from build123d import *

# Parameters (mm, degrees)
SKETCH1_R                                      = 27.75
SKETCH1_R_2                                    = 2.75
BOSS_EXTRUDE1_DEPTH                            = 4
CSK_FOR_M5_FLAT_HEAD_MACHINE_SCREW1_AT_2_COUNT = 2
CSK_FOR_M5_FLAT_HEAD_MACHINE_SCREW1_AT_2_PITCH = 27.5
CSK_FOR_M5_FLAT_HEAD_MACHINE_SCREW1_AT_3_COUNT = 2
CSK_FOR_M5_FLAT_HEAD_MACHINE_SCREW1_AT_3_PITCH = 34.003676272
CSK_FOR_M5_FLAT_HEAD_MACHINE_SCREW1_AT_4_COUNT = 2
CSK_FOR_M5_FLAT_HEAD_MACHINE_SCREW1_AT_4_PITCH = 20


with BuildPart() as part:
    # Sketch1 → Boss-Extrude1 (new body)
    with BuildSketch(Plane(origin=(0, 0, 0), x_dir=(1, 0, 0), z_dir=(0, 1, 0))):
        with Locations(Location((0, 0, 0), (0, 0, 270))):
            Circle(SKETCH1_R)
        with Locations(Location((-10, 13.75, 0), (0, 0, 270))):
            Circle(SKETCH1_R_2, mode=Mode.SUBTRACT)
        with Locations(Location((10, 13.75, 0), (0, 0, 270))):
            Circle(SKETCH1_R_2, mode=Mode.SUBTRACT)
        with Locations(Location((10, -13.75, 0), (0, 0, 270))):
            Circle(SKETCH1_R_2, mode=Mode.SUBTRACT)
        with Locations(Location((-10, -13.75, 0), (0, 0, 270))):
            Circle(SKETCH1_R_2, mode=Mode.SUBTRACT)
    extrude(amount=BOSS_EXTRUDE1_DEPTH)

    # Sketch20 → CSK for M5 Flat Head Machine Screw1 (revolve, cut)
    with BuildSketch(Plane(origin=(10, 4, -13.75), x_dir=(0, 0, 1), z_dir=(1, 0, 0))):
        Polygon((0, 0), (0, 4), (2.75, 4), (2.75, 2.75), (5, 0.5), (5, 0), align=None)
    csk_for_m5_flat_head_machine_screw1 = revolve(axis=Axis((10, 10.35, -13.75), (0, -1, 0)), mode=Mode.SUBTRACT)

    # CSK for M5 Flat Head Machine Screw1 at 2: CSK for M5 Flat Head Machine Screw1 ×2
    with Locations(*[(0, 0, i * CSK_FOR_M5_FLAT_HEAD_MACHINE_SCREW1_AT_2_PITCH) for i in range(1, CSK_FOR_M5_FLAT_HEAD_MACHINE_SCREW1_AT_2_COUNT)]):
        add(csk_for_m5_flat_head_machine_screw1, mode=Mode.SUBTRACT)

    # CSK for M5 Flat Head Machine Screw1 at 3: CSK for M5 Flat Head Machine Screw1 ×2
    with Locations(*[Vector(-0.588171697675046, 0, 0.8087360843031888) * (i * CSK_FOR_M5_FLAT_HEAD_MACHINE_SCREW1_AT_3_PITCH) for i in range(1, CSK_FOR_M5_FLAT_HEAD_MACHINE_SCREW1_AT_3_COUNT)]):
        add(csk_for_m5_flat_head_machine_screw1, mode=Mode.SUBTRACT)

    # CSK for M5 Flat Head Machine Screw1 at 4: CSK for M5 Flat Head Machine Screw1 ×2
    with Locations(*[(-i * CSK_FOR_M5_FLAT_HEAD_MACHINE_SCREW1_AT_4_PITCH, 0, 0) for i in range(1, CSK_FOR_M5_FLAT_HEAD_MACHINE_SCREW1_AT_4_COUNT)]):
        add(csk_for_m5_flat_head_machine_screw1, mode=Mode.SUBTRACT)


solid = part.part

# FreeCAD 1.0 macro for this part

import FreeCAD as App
import Part
import Sketcher
Q = App.Units.Quantity


def add_polygon(sketch, points):
    """Adds a closed chain of lines whose ends are joined by coincident constraints."""
    first, n = sketch.GeometryCount, len(points)
    for a, b in zip(points, points[1:] + points[:1]):
        sketch.addGeometry(Part.LineSegment(App.Vector(*a, 0), App.Vector(*b, 0)), False)
    for i in range(n):
        sketch.addConstraint(Sketcher.Constraint("Coincident", first + i, 2, first + (i + 1) % n, 1))

doc = App.newDocument("Part")
params = doc.addObject("Spreadsheet::Sheet", "Params")
for row, (alias, value) in enumerate([
    ("sketch1_diameter", "55.5 mm"),
    ("sketch1_diameter2", "5.5 mm"),
    ("pad1_length", "4 mm"),
    ("sketch2_width", "4 mm"),
    ("sketch2_height", "5 mm"),
    ("sketch2_width2", "0.5 mm"),
    ("sketch2_width3", "1.25 mm"),
    ("groove_angle", "360 deg"),
    ("linearpattern_pitch", "27.5 mm"),
    ("linearpattern2_pitch", "34.003676 mm"),
    ("linearpattern3_pitch", "20 mm"),
], start=1):
    params.set(f"A{row}", alias)
    params.set(f"B{row}", "=" + value)
    params.setAlias(f"B{row}", alias)

body = doc.addObject("PartDesign::Body", "Body")

# Sketch on XZ plane
sketch1 = doc.addObject("Sketcher::SketchObject", "Sketch")
body.addObject(sketch1)
sketch1.AttachmentSupport = (doc.XZ_Plane, [""])
sketch1.MapMode = "FlatFace"
sketch1.addGeometry(Part.Circle(App.Vector(0, 0, 0), App.Vector(0, 0, 1), 27.75), False)
sketch1.addGeometry(Part.Circle(App.Vector(-10, -13.75, 0), App.Vector(0, 0, 1), 2.75), False)
sketch1.addGeometry(Part.Circle(App.Vector(-10, 13.75, 0), App.Vector(0, 0, 1), 2.75), False)
sketch1.addGeometry(Part.Circle(App.Vector(10, -13.75, 0), App.Vector(0, 0, 1), 2.75), False)
sketch1.addGeometry(Part.Circle(App.Vector(10, 13.75, 0), App.Vector(0, 0, 1), 2.75), False)
sketch1.addConstraint(Sketcher.Constraint("Coincident", 0, 3, -1, 1))
sketch1.addConstraint(Sketcher.Constraint("Equal", 1, 2))
sketch1.addConstraint(Sketcher.Constraint("Equal", 2, 3))
sketch1.addConstraint(Sketcher.Constraint("Equal", 3, 4))
sketch1.addConstraint(Sketcher.Constraint("Symmetric", 2, 3, 3, 3, -1, 1))
sketch1.addConstraint(Sketcher.Constraint("Symmetric", 1, 3, 4, 3, -1, 1))
sketch1.addConstraint(Sketcher.Constraint("Symmetric", 1, 3, 3, 3, -2))
sketch1.addConstraint(Sketcher.Constraint("Diameter", 0, Q("55.5 mm")))
sketch1.addConstraint(Sketcher.Constraint("Diameter", 1, Q("5.5 mm")))
sketch1.addConstraint(Sketcher.Constraint("DistanceX", 1, 3, -1, 1, Q("10 mm")))
sketch1.addConstraint(Sketcher.Constraint("DistanceY", 1, 3, 2, 3, Q("27.5 mm")))
sketch1.setExpression("Constraints[7]", "Params.sketch1_diameter")
sketch1.setExpression("Constraints[8]", "Params.sketch1_diameter2")
pad1 = doc.addObject("PartDesign::Pad", "Pad")
body.addObject(pad1)
pad1.Profile = sketch1
pad1.setExpression("Length", "Params.pad1_length")
pad1.Reversed = True

# Sketch on YZ plane
sketch2 = doc.addObject("Sketcher::SketchObject", "Sketch001")
body.addObject(sketch2)
sketch2.AttachmentSupport = (doc.YZ_Plane, [""])
sketch2.MapMode = "FlatFace"
sketch2.AttachmentOffset = App.Placement(App.Vector(0, 0, 10), App.Rotation())
add_polygon(sketch2, [(0, -13.75), (4, -13.75), (4, -8.75), (3.5, -8.75), (1.25, -11), (0, -11)])  # lines 0-5
sketch2.addGeometry(Part.LineSegment(App.Vector(4, -13.75, 0), App.Vector(0, -13.75, 0)), True)  # axis
sketch2.addConstraint(Sketcher.Constraint("Horizontal", 0))
sketch2.addConstraint(Sketcher.Constraint("Vertical", 1))
sketch2.addConstraint(Sketcher.Constraint("Horizontal", 2))
sketch2.addConstraint(Sketcher.Constraint("Horizontal", 4))
sketch2.addConstraint(Sketcher.Constraint("Vertical", 5))
sketch2.addConstraint(Sketcher.Constraint("Horizontal", 6))
sketch2.addConstraint(Sketcher.Constraint("Coincident", 6, 1, 0, 2))
sketch2.addConstraint(Sketcher.Constraint("PointOnObject", 4, 2, -2))
sketch2.addConstraint(Sketcher.Constraint("PointOnObject", 6, 2, -2))
sketch2.addConstraint(Sketcher.Constraint("DistanceX", 0, 1, 0, 2, Q("4 mm")))
sketch2.addConstraint(Sketcher.Constraint("DistanceY", 1, 1, 1, 2, Q("5 mm")))
sketch2.addConstraint(Sketcher.Constraint("Angle", 3, Q("-135 deg")))
sketch2.addConstraint(Sketcher.Constraint("DistanceX", 2, 2, 2, 1, Q("0.5 mm")))
sketch2.addConstraint(Sketcher.Constraint("DistanceY", 3, 2, -1, 1, Q("11 mm")))
sketch2.addConstraint(Sketcher.Constraint("DistanceX", 4, 2, 4, 1, Q("1.25 mm")))
sketch2.setExpression("Constraints[15]", "Params.sketch2_width")
sketch2.setExpression("Constraints[16]", "Params.sketch2_height")
sketch2.setExpression("Constraints[18]", "Params.sketch2_width2")
sketch2.setExpression("Constraints[20]", "Params.sketch2_width3")
groove = doc.addObject("PartDesign::Groove", "Groove")
body.addObject(groove)
groove.Profile = sketch2
groove.ReferenceAxis = (sketch2, ["Axis0"])
groove.setExpression("Angle", "Params.groove_angle")
doc.recompute()

linearpattern = doc.addObject("PartDesign::LinearPattern", "LinearPattern")
body.addObject(linearpattern)
linearpattern.Originals = [groove]
linearpattern.Direction = (doc.Z_Axis, [""])
linearpattern.Mode = "offset"
linearpattern.setExpression("Offset", "Params.linearpattern_pitch")
linearpattern.Occurrences = 2
body.Tip = linearpattern
doc.recompute()

datumline = doc.addObject("PartDesign::Line", "DatumLine")
body.addObject(datumline)
datumline.Placement = App.Placement(App.Vector(0, 0, 0), App.Rotation(App.Vector(0, 0, 1), App.Vector(-0.588171698, 0, 0.808736084)))
linearpattern2 = doc.addObject("PartDesign::LinearPattern", "LinearPattern001")
body.addObject(linearpattern2)
linearpattern2.Originals = [groove]
linearpattern2.Direction = (datumline, [""])
linearpattern2.Mode = "offset"
linearpattern2.setExpression("Offset", "Params.linearpattern2_pitch")
linearpattern2.Occurrences = 2
body.Tip = linearpattern2
doc.recompute()

linearpattern3 = doc.addObject("PartDesign::LinearPattern", "LinearPattern002")
body.addObject(linearpattern3)
linearpattern3.Originals = [groove]
linearpattern3.Direction = (doc.X_Axis, [""])
linearpattern3.Mode = "offset"
linearpattern3.setExpression("Offset", "Params.linearpattern3_pitch")
linearpattern3.Occurrences = 2
linearpattern3.Reversed = True
body.Tip = linearpattern3

doc.recompute()
